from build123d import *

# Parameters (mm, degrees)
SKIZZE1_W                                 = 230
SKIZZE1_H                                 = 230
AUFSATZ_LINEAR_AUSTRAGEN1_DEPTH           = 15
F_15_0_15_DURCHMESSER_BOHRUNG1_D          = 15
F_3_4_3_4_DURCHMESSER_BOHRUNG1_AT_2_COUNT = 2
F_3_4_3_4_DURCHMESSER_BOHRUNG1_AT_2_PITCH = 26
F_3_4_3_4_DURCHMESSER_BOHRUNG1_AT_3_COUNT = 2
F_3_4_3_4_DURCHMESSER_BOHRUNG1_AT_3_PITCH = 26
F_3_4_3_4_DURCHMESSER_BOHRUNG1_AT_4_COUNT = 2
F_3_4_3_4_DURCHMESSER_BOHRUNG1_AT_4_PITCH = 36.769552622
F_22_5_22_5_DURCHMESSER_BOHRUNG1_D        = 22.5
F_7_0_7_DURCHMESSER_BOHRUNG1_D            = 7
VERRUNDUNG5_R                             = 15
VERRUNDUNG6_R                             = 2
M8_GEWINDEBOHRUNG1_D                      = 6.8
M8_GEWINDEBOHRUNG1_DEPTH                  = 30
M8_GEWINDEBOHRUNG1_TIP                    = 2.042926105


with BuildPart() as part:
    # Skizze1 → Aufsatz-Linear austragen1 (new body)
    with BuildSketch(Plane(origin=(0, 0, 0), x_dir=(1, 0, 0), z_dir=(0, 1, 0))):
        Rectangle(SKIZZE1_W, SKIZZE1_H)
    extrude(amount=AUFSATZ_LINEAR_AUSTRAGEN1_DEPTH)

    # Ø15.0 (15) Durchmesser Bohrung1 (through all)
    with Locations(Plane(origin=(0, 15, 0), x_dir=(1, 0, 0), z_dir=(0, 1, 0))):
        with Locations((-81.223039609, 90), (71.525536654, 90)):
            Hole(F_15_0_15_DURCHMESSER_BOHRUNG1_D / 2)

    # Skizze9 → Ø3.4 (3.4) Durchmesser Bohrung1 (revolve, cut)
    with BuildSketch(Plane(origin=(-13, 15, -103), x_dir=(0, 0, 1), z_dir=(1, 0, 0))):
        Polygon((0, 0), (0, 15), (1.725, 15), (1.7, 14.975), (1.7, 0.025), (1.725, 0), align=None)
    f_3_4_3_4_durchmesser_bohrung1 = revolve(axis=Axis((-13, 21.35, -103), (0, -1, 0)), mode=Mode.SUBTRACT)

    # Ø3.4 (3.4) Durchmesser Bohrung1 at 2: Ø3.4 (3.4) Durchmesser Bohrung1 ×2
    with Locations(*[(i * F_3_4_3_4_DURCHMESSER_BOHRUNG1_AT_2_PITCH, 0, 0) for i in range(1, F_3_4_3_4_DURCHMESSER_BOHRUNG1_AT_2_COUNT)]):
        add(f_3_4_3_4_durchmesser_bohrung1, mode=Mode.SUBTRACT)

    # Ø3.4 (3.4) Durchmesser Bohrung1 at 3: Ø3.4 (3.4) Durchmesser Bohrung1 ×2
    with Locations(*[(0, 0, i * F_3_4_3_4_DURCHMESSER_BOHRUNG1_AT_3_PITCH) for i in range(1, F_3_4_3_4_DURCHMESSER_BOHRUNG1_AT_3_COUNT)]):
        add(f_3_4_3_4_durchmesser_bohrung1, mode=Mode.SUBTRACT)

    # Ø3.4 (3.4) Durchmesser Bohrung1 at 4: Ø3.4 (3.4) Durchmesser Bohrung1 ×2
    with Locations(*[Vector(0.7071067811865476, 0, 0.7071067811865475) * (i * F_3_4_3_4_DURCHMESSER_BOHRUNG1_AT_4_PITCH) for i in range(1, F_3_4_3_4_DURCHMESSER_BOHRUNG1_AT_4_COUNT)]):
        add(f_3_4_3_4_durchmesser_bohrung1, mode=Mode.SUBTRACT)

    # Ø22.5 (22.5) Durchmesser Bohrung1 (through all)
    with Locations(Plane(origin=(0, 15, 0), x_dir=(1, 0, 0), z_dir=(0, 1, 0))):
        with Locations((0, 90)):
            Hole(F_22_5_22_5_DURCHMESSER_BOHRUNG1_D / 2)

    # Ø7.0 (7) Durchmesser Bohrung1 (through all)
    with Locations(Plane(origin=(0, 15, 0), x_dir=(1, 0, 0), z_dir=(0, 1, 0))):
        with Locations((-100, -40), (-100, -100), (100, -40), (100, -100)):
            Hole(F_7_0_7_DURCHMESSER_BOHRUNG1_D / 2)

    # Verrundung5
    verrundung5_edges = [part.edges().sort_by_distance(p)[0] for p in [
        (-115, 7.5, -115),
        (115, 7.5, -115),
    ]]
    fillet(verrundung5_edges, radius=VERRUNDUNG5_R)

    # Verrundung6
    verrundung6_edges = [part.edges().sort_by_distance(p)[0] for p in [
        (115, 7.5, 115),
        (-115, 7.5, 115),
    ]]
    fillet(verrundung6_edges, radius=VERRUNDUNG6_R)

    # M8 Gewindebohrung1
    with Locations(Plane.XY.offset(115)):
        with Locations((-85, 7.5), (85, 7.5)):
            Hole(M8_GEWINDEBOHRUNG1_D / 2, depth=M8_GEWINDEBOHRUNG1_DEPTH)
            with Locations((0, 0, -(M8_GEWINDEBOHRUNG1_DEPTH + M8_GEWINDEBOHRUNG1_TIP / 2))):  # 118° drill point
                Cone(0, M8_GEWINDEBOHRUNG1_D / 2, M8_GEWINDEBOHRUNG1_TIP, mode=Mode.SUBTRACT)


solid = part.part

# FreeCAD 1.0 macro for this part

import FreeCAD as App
import Part
import Sketcher

V = App.Vector
Q = App.Units.Quantity


def edges_at(feature, points):
    """Names of the edges that pass closest to the given points."""
    edges = feature.Shape.Edges
    near = lambda p: min(range(len(edges)), key=lambda i: edges[i].distToShape(Part.Vertex(*p))[0])
    return sorted({f"Edge{near(p) + 1}" for p in points})


def add_polygon(sketch, points):
    """Adds a closed chain of lines whose ends are joined by coincident constraints."""
    first, n = sketch.GeometryCount, len(points)
    for a, b in zip(points, points[1:] + points[:1]):
        sketch.addGeometry(Part.LineSegment(App.Vector(*a, 0), App.Vector(*b, 0)), False)
    for i in range(n):
        sketch.addConstraint(Sketcher.Constraint("Coincident", first + i, 2, first + (i + 1) % n, 1))

doc = App.newDocument("Part")
body = doc.addObject("PartDesign::Body", "Body")

sketch1 = body.newObject("Sketcher::SketchObject", "Sketch")
sketch1.AttachmentSupport = (doc.getObject("XZ_Plane"), [""])
sketch1.MapMode = "FlatFace"
add_polygon(sketch1, [(-115, -115), (-115, 115), (115, 115), (115, -115)])
sketch1.addConstraint([
    Sketcher.Constraint("Vertical", 0),
    Sketcher.Constraint("Horizontal", 1),
    Sketcher.Constraint("Vertical", 2),
    Sketcher.Constraint("Horizontal", 3),
    Sketcher.Constraint("Symmetric", 0, 2, 2, 2, -1, 1),
    Sketcher.Constraint("Equal", 3, 0),
    Sketcher.Constraint("DistanceX", 1, 1, 1, 2, Q("230 mm")),
])
pad1 = body.newObject("PartDesign::Pad", "Pad")
pad1.Profile = sketch1
pad1.Length = 15
pad1.Reversed = True

sketch2 = body.newObject("Sketcher::SketchObject", "Sketch001")
sketch2.AttachmentSupport = (doc.getObject("XZ_Plane"), [""])
sketch2.MapMode = "FlatFace"
sketch2.AttachmentOffset = App.Placement(V(0, 0, -15), App.Rotation())
sketch2.addGeometry([
    Part.Circle(V(-81, -90, 0), V(0, 0, 1), 8),
    Part.Circle(V(72, -90, 0), V(0, 0, 1), 8),
], False)
sketch2.addConstraint([
    Sketcher.Constraint("Equal", 0, 1),
    Sketcher.Constraint("Horizontal", 0, 3, 1, 3),
    Sketcher.Constraint("Diameter", 0, Q("15 mm")),
    Sketcher.Constraint("DistanceY", 0, 3, -1, 1, Q("90 mm")),
    Sketcher.Constraint("DistanceX", 0, 3, -1, 1, Q("81.22304 mm")),
    Sketcher.Constraint("DistanceX", -1, 1, 1, 3, Q("71.525537 mm")),
])
doc.recompute()
hole = body.newObject("PartDesign::Hole", "Hole")
hole.Profile = sketch2
hole.ThreadType = "None"
hole.Diameter = 15
hole.DepthType = "ThroughAll"
hole.Reversed = True

sketch3 = body.newObject("Sketcher::SketchObject", "Sketch002")
sketch3.AttachmentSupport = (doc.getObject("YZ_Plane"), [""])
sketch3.MapMode = "FlatFace"
sketch3.AttachmentOffset = App.Placement(V(0, 0, -13), App.Rotation())
add_polygon(sketch3, [(0, -103), (15, -103), (15, -101.275), (14.975, -101.3), (0.025, -101.3), (0, -101.275)])
sketch3.addGeometry(Part.LineSegment(V(15, -103, 0), V(0, -103, 0)), True)
sketch3.addConstraint([
    Sketcher.Constraint("Horizontal", 0),
    Sketcher.Constraint("Vertical", 1),
    Sketcher.Constraint("Horizontal", 3),
    Sketcher.Constraint("Vertical", 5),
    Sketcher.Constraint("Horizontal", 6),
    Sketcher.Constraint("Coincident", 6, 1, 0, 2),
    Sketcher.Constraint("PointOnObject", 4, 2, -2),
    Sketcher.Constraint("PointOnObject", 6, 2, -2),
    Sketcher.Constraint("Perpendicular", 2, 4),
    Sketcher.Constraint("Horizontal", 1, 2, 4, 2),
    Sketcher.Constraint("Equal", 2, 4),
    Sketcher.Constraint("DistanceX", 0, 1, 0, 2, Q("15 mm")),
    Sketcher.Constraint("DistanceY", 0, 2, -1, 1, Q("103 mm")),
    Sketcher.Constraint("DistanceX", 3, 2, 3, 1, Q("14.95 mm")),
    Sketcher.Constraint("DistanceY", 2, 2, -1, 1, Q("101.3 mm")),
])
groove = body.newObject("PartDesign::Groove", "Groove")
groove.Profile = sketch3
groove.ReferenceAxis = (sketch3, ["Axis0"])
groove.Angle = 360
doc.recompute()

linearpattern = body.newObject("PartDesign::LinearPattern", "LinearPattern")
linearpattern.Originals = [groove]
linearpattern.Direction = (doc.getObject("X_Axis"), [""])
linearpattern.Mode = "offset"
linearpattern.Offset = 26
linearpattern.Occurrences = 2
body.Tip = linearpattern
doc.recompute()

linearpattern2 = body.newObject("PartDesign::LinearPattern", "LinearPattern001")
linearpattern2.Originals = [groove]
linearpattern2.Direction = (doc.getObject("Z_Axis"), [""])
linearpattern2.Mode = "offset"
linearpattern2.Offset = 26
linearpattern2.Occurrences = 2
body.Tip = linearpattern2
doc.recompute()

datumline = body.newObject("PartDesign::Line", "DatumLine")
datumline.Placement = App.Placement(V(0, 0, 0), App.Rotation(V(0, 0, 1), V(0.707106781, 0, 0.707106781)))
linearpattern3 = body.newObject("PartDesign::LinearPattern", "LinearPattern002")
linearpattern3.Originals = [groove]
linearpattern3.Direction = (datumline, [""])
linearpattern3.Mode = "offset"
linearpattern3.Offset = 36.769553
linearpattern3.Occurrences = 2
body.Tip = linearpattern3

sketch4 = body.newObject("Sketcher::SketchObject", "Sketch003")
sketch4.AttachmentSupport = (doc.getObject("XZ_Plane"), [""])
sketch4.MapMode = "FlatFace"
sketch4.AttachmentOffset = App.Placement(V(0, 0, -15), App.Rotation())
sketch4.addGeometry(Part.Circle(V(0, -90, 0), V(0, 0, 1), 11), False)
sketch4.addConstraint([
    Sketcher.Constraint("PointOnObject", 0, 3, -2),
    Sketcher.Constraint("Diameter", 0, Q("22.5 mm")),
    Sketcher.Constraint("DistanceY", 0, 3, -1, 1, Q("90 mm")),
])
doc.recompute()
hole2 = body.newObject("PartDesign::Hole", "Hole001")
hole2.Profile = sketch4
hole2.ThreadType = "None"
hole2.Diameter = 22.5
hole2.DepthType = "ThroughAll"
hole2.Reversed = True

sketch5 = body.newObject("Sketcher::SketchObject", "Sketch004")
sketch5.AttachmentSupport = (doc.getObject("XZ_Plane"), [""])
sketch5.MapMode = "FlatFace"
sketch5.AttachmentOffset = App.Placement(V(0, 0, -15), App.Rotation())
sketch5.addGeometry([
    Part.Circle(V(-100, 40, 0), V(0, 0, 1), 3.5),
    Part.Circle(V(-100, 100, 0), V(0, 0, 1), 3.5),
    Part.Circle(V(100, 40, 0), V(0, 0, 1), 3.5),
    Part.Circle(V(100, 100, 0), V(0, 0, 1), 3.5),
], False)
sketch5.addConstraint([
    Sketcher.Constraint("Equal", 0, 1),
    Sketcher.Constraint("Equal", 1, 2),
    Sketcher.Constraint("Equal", 2, 3),
    Sketcher.Constraint("Symmetric", 0, 3, 2, 3, -2),
    Sketcher.Constraint("Symmetric", 1, 3, 3, 3, -2),
    Sketcher.Constraint("Vertical", 0, 3, 1, 3),
    Sketcher.Constraint("Diameter", 0, Q("7 mm")),
    Sketcher.Constraint("DistanceX", 0, 3, -1, 1, Q("100 mm")),
    Sketcher.Constraint("DistanceY", -1, 1, 0, 3, Q("40 mm")),
    Sketcher.Constraint("DistanceY", -1, 1, 1, 3, Q("100 mm")),
])
doc.recompute()
hole3 = body.newObject("PartDesign::Hole", "Hole002")
hole3.Profile = sketch5
hole3.ThreadType = "None"
hole3.Diameter = 7
hole3.DepthType = "ThroughAll"
hole3.Reversed = True
doc.recompute()

fillet = body.newObject("PartDesign::Fillet", "Fillet")
fillet.Base = (hole3, edges_at(hole3, [(-115, 7.5, -115), (115, 7.5, -115)]))
fillet.Radius = 15
doc.recompute()

fillet2 = body.newObject("PartDesign::Fillet", "Fillet001")
fillet2.Base = (fillet, edges_at(fillet, [(115, 7.5, 115), (-115, 7.5, 115)]))
fillet2.Radius = 2

sketch6 = body.newObject("Sketcher::SketchObject", "Sketch005")
sketch6.AttachmentSupport = (doc.getObject("XY_Plane"), [""])
sketch6.MapMode = "FlatFace"
sketch6.AttachmentOffset = App.Placement(V(0, 0, 115), App.Rotation())
sketch6.addGeometry([
    Part.Circle(V(-85, 7.5, 0), V(0, 0, 1), 3.4),
    Part.Circle(V(85, 7.5, 0), V(0, 0, 1), 3.4),
], False)
sketch6.addConstraint([
    Sketcher.Constraint("Equal", 0, 1),
    Sketcher.Constraint("Symmetric", 0, 3, 1, 3, -2),
    Sketcher.Constraint("Diameter", 0, Q("6.8 mm")),
    Sketcher.Constraint("DistanceX", 0, 3, -1, 1, Q("85 mm")),
    Sketcher.Constraint("DistanceY", -1, 1, 0, 3, Q("7.5 mm")),
])
doc.recompute()
hole4 = body.newObject("PartDesign::Hole", "Hole003")
hole4.Profile = sketch6
hole4.ThreadType = "None"
hole4.Diameter = 6.8
hole4.DepthType = "Dimension"
hole4.Depth = 30
hole4.DrillPoint = "Angled"
hole4.DrillPointAngle = 118

doc.recompute()
